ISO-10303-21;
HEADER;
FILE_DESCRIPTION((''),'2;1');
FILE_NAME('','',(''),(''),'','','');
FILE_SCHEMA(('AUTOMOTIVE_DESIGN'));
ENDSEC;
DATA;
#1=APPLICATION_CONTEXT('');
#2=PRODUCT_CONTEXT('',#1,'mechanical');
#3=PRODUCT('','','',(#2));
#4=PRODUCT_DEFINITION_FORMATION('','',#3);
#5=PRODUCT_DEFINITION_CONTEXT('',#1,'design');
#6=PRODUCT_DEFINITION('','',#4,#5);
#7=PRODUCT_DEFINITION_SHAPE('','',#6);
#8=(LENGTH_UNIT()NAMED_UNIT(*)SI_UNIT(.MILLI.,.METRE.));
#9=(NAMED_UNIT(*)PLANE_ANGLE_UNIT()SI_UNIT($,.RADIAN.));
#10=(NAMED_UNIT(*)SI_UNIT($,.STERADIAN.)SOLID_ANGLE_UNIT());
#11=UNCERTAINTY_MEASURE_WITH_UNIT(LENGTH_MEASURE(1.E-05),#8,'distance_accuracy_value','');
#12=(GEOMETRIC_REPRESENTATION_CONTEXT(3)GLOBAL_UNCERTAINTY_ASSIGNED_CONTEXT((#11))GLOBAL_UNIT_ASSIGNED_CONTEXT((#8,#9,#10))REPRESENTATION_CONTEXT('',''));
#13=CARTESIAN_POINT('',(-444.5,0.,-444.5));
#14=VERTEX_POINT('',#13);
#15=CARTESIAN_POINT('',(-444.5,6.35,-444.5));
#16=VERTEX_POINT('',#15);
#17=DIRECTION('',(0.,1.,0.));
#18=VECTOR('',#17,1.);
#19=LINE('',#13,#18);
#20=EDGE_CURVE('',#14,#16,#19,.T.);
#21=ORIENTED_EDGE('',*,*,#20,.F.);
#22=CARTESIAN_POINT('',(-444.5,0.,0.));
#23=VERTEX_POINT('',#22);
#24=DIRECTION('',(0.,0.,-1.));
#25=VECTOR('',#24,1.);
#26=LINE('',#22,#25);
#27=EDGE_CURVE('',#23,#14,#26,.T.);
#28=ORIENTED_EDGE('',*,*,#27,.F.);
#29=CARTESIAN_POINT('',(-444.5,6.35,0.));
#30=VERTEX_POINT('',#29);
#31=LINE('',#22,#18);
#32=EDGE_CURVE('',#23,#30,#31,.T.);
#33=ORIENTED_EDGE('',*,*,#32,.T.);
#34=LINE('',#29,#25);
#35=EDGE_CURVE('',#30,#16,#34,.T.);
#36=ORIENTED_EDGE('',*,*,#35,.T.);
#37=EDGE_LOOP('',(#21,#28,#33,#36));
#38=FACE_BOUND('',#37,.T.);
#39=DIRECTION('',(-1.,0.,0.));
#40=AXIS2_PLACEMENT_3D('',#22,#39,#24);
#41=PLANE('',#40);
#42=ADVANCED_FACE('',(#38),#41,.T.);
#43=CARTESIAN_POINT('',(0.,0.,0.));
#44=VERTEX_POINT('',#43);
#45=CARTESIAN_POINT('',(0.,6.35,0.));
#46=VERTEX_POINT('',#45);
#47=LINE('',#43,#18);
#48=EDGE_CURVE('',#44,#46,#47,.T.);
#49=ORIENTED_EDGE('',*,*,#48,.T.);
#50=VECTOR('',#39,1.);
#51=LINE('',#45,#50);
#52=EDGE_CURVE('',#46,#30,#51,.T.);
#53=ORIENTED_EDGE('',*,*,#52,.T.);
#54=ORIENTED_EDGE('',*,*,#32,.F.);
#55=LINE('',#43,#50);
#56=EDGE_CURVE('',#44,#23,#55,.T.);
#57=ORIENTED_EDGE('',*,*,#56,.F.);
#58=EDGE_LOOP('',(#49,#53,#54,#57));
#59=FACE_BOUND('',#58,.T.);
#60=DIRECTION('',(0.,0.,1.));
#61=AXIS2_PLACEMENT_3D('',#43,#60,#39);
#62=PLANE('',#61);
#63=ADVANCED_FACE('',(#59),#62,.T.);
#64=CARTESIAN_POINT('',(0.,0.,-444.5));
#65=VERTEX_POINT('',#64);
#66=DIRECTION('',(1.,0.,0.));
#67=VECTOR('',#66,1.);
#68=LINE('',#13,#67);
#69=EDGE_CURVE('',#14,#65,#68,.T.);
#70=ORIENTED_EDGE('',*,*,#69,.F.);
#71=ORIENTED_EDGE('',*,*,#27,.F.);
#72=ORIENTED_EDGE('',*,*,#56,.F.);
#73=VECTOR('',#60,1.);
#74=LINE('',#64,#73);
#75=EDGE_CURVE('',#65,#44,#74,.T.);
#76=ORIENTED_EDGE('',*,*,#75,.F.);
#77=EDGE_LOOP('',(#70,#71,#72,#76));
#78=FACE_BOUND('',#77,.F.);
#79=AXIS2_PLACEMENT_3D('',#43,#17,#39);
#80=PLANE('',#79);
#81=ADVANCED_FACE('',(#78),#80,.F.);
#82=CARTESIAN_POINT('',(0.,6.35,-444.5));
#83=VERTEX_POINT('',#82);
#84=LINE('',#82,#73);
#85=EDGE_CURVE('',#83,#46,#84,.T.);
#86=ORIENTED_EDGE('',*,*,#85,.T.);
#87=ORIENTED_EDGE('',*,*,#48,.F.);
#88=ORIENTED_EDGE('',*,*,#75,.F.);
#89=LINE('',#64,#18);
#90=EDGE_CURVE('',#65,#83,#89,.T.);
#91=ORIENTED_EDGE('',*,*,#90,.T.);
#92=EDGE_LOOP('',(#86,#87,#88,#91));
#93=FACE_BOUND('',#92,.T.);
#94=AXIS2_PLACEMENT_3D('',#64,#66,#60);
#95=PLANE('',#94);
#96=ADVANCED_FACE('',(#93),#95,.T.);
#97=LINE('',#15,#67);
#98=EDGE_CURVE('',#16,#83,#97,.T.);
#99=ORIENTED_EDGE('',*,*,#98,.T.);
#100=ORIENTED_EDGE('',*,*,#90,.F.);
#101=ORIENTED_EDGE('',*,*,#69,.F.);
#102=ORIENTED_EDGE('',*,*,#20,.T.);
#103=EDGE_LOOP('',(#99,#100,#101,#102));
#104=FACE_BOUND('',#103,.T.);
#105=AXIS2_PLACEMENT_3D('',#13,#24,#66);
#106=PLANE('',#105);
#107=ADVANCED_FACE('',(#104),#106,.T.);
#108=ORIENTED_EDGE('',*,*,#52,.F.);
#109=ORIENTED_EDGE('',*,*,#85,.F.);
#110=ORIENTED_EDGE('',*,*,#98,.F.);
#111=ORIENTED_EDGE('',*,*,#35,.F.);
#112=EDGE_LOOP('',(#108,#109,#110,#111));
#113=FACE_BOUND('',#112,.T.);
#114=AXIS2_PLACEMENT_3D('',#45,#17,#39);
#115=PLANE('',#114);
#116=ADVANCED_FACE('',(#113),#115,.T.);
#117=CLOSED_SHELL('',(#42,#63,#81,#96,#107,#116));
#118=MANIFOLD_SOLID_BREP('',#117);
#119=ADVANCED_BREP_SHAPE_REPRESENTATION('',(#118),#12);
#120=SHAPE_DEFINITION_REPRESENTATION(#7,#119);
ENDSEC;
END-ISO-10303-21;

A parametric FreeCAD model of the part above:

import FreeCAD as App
import Part
import Sketcher

V = App.Vector
Q = App.Units.Quantity


def add_polygon(sketch, points):
    """Adds a closed chain of lines whose ends are joined by coincident constraints."""
    first, n = sketch.GeometryCount, len(points)
    for a, b in zip(points, points[1:] + points[:1]):
        sketch.addGeometry(Part.LineSegment(App.Vector(*a, 0), App.Vector(*b, 0)), False)
    for i in range(n):
        sketch.addConstraint(Sketcher.Constraint("Coincident", first + i, 2, first + (i + 1) % n, 1))

doc = App.newDocument("Part")
body = doc.addObject("PartDesign::Body", "Body")

sketch1 = body.newObject("Sketcher::SketchObject", "Sketch")
sketch1.AttachmentSupport = (doc.getObject("XZ_Plane"), [""])
sketch1.MapMode = "FlatFace"
add_polygon(sketch1, [(-444.5, 0), (0, 0), (0, -444.5), (-444.5, -444.5)])
sketch1.addConstraint([
    Sketcher.Constraint("Horizontal", 0),
    Sketcher.Constraint("Vertical", 1),
    Sketcher.Constraint("Horizontal", 2),
    Sketcher.Constraint("Vertical", 3),
    Sketcher.Constraint("Coincident", 0, 2, -1, 1),
    Sketcher.Constraint("Equal", 2, 1),
    Sketcher.Constraint("DistanceX", 0, 1, 0, 2, Q("17.5 in")),
])
pad1 = body.newObject("PartDesign::Pad", "Pad")
pad1.Profile = sketch1
pad1.Length = Q("0.25 in")
pad1.Reversed = True

doc.recompute()
